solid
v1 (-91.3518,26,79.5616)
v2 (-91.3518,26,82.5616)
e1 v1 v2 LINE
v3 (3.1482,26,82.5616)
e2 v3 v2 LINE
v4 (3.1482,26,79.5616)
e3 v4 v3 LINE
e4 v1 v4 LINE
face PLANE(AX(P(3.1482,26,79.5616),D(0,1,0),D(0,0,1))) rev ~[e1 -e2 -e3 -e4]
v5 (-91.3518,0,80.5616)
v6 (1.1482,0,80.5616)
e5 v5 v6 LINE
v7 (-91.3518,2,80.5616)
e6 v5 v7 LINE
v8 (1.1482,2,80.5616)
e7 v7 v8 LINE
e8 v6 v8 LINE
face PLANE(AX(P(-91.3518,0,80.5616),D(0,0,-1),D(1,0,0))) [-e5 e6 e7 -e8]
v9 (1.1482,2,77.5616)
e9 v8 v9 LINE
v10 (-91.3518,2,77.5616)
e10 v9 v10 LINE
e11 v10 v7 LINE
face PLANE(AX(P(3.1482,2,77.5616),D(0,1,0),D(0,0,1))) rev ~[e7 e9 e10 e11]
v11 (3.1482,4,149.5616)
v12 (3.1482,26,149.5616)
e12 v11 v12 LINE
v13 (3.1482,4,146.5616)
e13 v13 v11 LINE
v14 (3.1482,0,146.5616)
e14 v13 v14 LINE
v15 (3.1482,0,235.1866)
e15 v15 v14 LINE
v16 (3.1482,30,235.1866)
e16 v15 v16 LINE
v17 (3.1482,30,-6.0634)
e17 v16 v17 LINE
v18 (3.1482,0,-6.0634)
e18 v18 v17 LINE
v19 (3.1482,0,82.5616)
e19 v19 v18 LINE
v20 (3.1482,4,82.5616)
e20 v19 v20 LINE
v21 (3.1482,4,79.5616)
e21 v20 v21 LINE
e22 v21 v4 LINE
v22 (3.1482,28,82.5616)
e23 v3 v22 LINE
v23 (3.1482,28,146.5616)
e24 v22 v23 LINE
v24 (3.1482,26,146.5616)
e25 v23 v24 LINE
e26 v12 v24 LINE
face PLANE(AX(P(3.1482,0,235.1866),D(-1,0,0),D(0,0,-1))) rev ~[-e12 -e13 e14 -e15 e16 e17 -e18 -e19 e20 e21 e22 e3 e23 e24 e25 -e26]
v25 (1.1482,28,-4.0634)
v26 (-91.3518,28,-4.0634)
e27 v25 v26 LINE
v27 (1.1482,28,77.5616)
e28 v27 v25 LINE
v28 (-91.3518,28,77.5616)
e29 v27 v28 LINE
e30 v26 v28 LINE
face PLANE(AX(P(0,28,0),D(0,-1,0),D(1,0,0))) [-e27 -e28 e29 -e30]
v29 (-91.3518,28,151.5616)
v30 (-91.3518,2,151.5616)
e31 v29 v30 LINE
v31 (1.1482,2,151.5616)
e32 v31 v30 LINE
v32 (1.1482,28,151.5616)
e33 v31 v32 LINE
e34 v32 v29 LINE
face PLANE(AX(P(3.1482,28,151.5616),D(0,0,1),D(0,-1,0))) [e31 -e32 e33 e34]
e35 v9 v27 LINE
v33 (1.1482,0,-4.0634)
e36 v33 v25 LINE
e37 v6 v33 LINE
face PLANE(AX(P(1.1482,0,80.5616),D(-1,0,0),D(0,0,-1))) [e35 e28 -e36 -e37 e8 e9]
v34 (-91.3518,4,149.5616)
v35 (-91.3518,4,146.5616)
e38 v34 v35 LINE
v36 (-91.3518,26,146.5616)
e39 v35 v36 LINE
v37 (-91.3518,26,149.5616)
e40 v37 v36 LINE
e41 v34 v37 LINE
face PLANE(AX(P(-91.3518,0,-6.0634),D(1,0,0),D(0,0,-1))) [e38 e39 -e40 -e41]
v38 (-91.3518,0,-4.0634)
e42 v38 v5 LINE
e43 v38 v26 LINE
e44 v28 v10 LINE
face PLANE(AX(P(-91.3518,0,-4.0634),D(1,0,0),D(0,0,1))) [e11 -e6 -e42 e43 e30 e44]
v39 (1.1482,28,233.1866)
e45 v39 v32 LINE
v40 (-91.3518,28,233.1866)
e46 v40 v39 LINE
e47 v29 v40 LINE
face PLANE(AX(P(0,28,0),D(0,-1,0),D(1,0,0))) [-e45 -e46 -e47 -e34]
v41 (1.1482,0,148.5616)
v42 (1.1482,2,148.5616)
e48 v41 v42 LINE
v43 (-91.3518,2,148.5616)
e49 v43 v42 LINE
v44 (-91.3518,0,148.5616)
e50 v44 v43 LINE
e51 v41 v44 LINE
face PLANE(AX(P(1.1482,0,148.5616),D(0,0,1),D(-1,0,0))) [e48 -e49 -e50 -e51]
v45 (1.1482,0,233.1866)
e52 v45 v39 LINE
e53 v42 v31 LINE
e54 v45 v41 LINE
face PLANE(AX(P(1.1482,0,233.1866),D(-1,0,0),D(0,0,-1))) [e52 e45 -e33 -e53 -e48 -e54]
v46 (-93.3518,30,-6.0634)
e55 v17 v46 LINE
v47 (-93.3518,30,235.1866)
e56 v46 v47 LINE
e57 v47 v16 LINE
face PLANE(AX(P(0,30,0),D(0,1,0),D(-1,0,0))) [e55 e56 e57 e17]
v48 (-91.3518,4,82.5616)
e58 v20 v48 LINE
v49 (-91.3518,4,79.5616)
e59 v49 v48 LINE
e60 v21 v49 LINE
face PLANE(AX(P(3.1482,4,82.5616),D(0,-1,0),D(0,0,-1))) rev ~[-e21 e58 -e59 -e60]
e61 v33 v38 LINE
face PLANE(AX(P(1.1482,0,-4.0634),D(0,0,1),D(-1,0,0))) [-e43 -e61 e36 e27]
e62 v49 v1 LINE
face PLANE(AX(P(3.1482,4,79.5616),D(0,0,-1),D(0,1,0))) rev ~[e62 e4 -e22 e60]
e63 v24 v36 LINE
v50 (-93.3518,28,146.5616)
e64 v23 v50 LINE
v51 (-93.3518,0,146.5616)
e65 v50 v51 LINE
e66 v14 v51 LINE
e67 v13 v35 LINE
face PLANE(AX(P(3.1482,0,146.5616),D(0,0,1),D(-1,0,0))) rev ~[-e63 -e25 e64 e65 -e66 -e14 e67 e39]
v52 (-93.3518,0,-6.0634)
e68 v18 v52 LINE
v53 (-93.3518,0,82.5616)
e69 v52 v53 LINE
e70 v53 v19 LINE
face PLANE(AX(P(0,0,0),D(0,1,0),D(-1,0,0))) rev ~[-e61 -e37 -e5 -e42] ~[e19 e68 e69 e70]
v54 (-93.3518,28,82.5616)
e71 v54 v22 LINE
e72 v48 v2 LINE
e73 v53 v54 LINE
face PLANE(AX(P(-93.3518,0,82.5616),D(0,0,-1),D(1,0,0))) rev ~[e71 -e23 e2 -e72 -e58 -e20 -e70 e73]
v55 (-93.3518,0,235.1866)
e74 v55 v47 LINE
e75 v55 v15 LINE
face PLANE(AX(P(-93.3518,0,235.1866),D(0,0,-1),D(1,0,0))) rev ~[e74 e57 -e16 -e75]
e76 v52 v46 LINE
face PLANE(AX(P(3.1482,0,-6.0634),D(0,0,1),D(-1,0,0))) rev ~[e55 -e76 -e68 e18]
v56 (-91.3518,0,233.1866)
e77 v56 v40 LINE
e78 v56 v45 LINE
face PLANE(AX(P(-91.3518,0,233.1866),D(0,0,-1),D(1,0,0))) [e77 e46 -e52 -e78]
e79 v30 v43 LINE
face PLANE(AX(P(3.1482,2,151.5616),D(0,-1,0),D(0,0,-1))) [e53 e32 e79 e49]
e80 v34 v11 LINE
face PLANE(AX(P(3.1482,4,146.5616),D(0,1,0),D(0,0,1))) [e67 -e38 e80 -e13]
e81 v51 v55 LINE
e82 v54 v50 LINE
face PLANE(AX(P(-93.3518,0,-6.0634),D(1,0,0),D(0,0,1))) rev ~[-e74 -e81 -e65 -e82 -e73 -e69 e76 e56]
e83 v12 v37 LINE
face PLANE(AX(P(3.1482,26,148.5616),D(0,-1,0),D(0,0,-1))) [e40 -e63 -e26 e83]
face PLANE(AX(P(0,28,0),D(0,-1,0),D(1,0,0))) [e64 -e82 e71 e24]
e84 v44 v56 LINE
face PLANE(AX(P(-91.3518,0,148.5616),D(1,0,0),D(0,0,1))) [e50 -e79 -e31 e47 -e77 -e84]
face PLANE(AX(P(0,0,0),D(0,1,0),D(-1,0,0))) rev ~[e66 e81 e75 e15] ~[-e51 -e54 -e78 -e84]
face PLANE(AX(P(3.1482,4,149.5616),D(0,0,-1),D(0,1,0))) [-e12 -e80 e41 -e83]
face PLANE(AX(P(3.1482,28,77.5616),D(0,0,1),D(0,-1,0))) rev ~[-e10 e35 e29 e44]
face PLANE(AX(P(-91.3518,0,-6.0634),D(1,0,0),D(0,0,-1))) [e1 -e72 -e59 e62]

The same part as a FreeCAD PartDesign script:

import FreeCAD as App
import Part
import Sketcher

doc = App.newDocument("Part")
params = doc.addObject("Spreadsheet::Sheet", "Params")
for row, (alias, value) in enumerate([
    ("sketch1_width", "96.5 mm"),
    ("sketch1_height", "241.25 mm"),
    ("pad1_length", "30 mm"),
    ("sketch2_height", "64 mm"),
    ("sketch2_width", "96.5 mm"),
    ("pocket1_length", "28 mm"),
    ("sketch3_width", "92.5 mm"),
    ("pocket2_length", "28 mm"),
    ("sketch4_width", "2 mm"),
    ("sketch4_width2", "22 mm"),
    ("sketch4_height", "5 mm"),
    ("sketch4_height2", "3 mm"),
    ("pad2_length", "96.5 mm"),
    ("sketch5_width", "22 mm"),
    ("sketch5_height", "3 mm"),
    ("pocket3_length", "94.5 mm"),
], start=1):
    params.set(f"A{row}", alias)
    params.set(f"B{row}", "=" + value)
    params.setAlias(f"B{row}", alias)

body = doc.addObject("PartDesign::Body", "Body")

# Sketch on XZ plane
sketch1 = body.newObject("Sketcher::SketchObject", "Sketch")
sketch1.AttachmentSupport = (doc.getObject("XZ_Plane"), [""])
sketch1.MapMode = "FlatFace"
sketch1.addGeometry([
    Part.LineSegment(App.Vector(-93, -6, 0), App.Vector(-93, 235, 0)),
    Part.LineSegment(App.Vector(-93, 235, 0), App.Vector(3, 235, 0)),
    Part.LineSegment(App.Vector(3, 235, 0), App.Vector(3, -6, 0)),
    Part.LineSegment(App.Vector(3, -6, 0), App.Vector(-93, -6, 0)),
], False)
sketch1.addConstraint([
    Sketcher.Constraint("Coincident", 0, 2, 1, 1),
    Sketcher.Constraint("Coincident", 1, 2, 2, 1),
    Sketcher.Constraint("Coincident", 2, 2, 3, 1),
    Sketcher.Constraint("Coincident", 3, 2, 0, 1),
    Sketcher.Constraint("Vertical", 0),
    Sketcher.Constraint("Horizontal", 1),
    Sketcher.Constraint("Vertical", 2),
    Sketcher.Constraint("Horizontal", 3),
    Sketcher.Constraint("DistanceX", 1, 1, 1, 2, 96.5),
    Sketcher.Constraint("DistanceY", 0, 1, 0, 2, 241.25),
    Sketcher.Constraint("DistanceX", 0, 2, -1, 1, 93.3518),
    Sketcher.Constraint("DistanceY", -1, 1, 0, 2, 235.1866),
])
sketch1.setExpression("Constraints[8]", "Params.sketch1_width")
sketch1.setExpression("Constraints[9]", "Params.sketch1_height")
pad1 = body.newObject("PartDesign::Pad", "Pad")
pad1.Profile = sketch1
pad1.setExpression("Length", "Params.pad1_length")
pad1.Reversed = True

# Sketch on XZ plane
sketch2 = body.newObject("Sketcher::SketchObject", "Sketch001")
sketch2.AttachmentSupport = (doc.getObject("XZ_Plane"), [""])
sketch2.MapMode = "FlatFace"
sketch2.addGeometry([
    Part.LineSegment(App.Vector(-93, 147, 0), App.Vector(-93, 83, 0)),
    Part.LineSegment(App.Vector(-93, 83, 0), App.Vector(3, 83, 0)),
    Part.LineSegment(App.Vector(3, 83, 0), App.Vector(3, 147, 0)),
    Part.LineSegment(App.Vector(3, 147, 0), App.Vector(-93, 147, 0)),
], False)
sketch2.addConstraint([
    Sketcher.Constraint("Coincident", 0, 2, 1, 1),
    Sketcher.Constraint("Coincident", 1, 2, 2, 1),
    Sketcher.Constraint("Coincident", 2, 2, 3, 1),
    Sketcher.Constraint("Coincident", 3, 2, 0, 1),
    Sketcher.Constraint("Vertical", 0),
    Sketcher.Constraint("Horizontal", 1),
    Sketcher.Constraint("Vertical", 2),
    Sketcher.Constraint("Horizontal", 3),
    Sketcher.Constraint("DistanceY", 0, 2, 0, 1, 64.0),
    Sketcher.Constraint("DistanceX", 1, 1, 1, 2, 96.5),
    Sketcher.Constraint("DistanceX", 0, 2, -1, 1, 93.3518),
    Sketcher.Constraint("DistanceY", -1, 1, 0, 2, 82.5616),
])
sketch2.setExpression("Constraints[8]", "Params.sketch2_height")
sketch2.setExpression("Constraints[9]", "Params.sketch2_width")
pocket1 = body.newObject("PartDesign::Pocket", "Pocket")
pocket1.Profile = sketch2
pocket1.setExpression("Length", "Params.pocket1_length")

# Sketch on XZ plane
sketch3 = body.newObject("Sketcher::SketchObject", "Sketch002")
sketch3.AttachmentSupport = (doc.getObject("XZ_Plane"), [""])
sketch3.MapMode = "FlatFace"
sketch3.addGeometry([
    Part.LineSegment(App.Vector(1, 81, 0), App.Vector(-91, 81, 0)),  # 0
    Part.LineSegment(App.Vector(-91, 81, 0), App.Vector(-91, -4, 0)),  # 1
    Part.LineSegment(App.Vector(-91, -4, 0), App.Vector(1, -4, 0)),  # 2
    Part.LineSegment(App.Vector(1, -4, 0), App.Vector(1, 81, 0)),  # 3
    Part.LineSegment(App.Vector(1, 233, 0), App.Vector(-91, 233, 0)),  # 4
    Part.LineSegment(App.Vector(-91, 233, 0), App.Vector(-91, 149, 0)),  # 5
    Part.LineSegment(App.Vector(-91, 149, 0), App.Vector(1, 149, 0)),  # 6
    Part.LineSegment(App.Vector(1, 149, 0), App.Vector(1, 233, 0)),  # 7
], False)
sketch3.addConstraint([
    Sketcher.Constraint("Coincident", 0, 2, 1, 1),
    Sketcher.Constraint("Coincident", 1, 2, 2, 1),
    Sketcher.Constraint("Coincident", 2, 2, 3, 1),
    Sketcher.Constraint("Coincident", 3, 2, 0, 1),
    Sketcher.Constraint("Coincident", 4, 2, 5, 1),
    Sketcher.Constraint("Coincident", 5, 2, 6, 1),
    Sketcher.Constraint("Coincident", 6, 2, 7, 1),
    Sketcher.Constraint("Coincident", 7, 2, 4, 1),
    Sketcher.Constraint("Horizontal", 0),
    Sketcher.Constraint("Vertical", 1),
    Sketcher.Constraint("Horizontal", 2),
    Sketcher.Constraint("Vertical", 3),
    Sketcher.Constraint("Horizontal", 4),
    Sketcher.Constraint("Vertical", 5),
    Sketcher.Constraint("Horizontal", 6),
    Sketcher.Constraint("Vertical", 7),
    Sketcher.Constraint("Vertical", 1, 2, 4, 2),
    Sketcher.Constraint("Vertical", 3, 2, 6, 2),
    Sketcher.Constraint("Equal", 3, 5),
    Sketcher.Constraint("DistanceX", 0, 2, 0, 1, 92.5),
    Sketcher.Constraint("DistanceY", 0, 2, 5, 2, 68.0),
    Sketcher.Constraint("DistanceY", 1, 2, 1, 1, 84.625),
    Sketcher.Constraint("DistanceX", 0, 2, -1, 1, 91.3518),
    Sketcher.Constraint("DistanceY", -1, 1, 0, 2, 80.5616),
])
sketch3.setExpression("Constraints[19]", "Params.sketch3_width")
pocket2 = body.newObject("PartDesign::Pocket", "Pocket001")
pocket2.Profile = sketch3
pocket2.setExpression("Length", "Params.pocket2_length")

# Sketch on YZ plane
sketch4 = body.newObject("Sketcher::SketchObject", "Sketch003")
sketch4.AttachmentSupport = (doc.getObject("YZ_Plane"), [""])
sketch4.MapMode = "FlatFace"
sketch4.AttachmentOffset = App.Placement(App.Vector(0, 0, 3.1482), App.Rotation())
sketch4.addGeometry([
    Part.LineSegment(App.Vector(28, 77.6, 0), App.Vector(28, 82.6, 0)),  # 0
    Part.LineSegment(App.Vector(28, 82.6, 0), App.Vector(26, 82.6, 0)),  # 1
    Part.LineSegment(App.Vector(26, 82.6, 0), App.Vector(26, 79.6, 0)),  # 2
    Part.LineSegment(App.Vector(26, 79.6, 0), App.Vector(4, 79.6, 0)),  # 3
    Part.LineSegment(App.Vector(4, 79.6, 0), App.Vector(4, 82.6, 0)),  # 4
    Part.LineSegment(App.Vector(4, 82.6, 0), App.Vector(2, 82.6, 0)),  # 5
    Part.LineSegment(App.Vector(2, 82.6, 0), App.Vector(2, 77.6, 0)),  # 6
    Part.LineSegment(App.Vector(2, 77.6, 0), App.Vector(28, 77.6, 0)),  # 7
    Part.LineSegment(App.Vector(26, 146.6, 0), App.Vector(28, 146.6, 0)),  # 8
    Part.LineSegment(App.Vector(28, 146.6, 0), App.Vector(28, 151.6, 0)),  # 9
    Part.LineSegment(App.Vector(28, 151.6, 0), App.Vector(2, 151.6, 0)),  # 10
    Part.LineSegment(App.Vector(2, 151.6, 0), App.Vector(2, 146.6, 0)),  # 11
    Part.LineSegment(App.Vector(2, 146.6, 0), App.Vector(4, 146.6, 0)),  # 12
    Part.LineSegment(App.Vector(4, 146.6, 0), App.Vector(4, 149.6, 0)),  # 13
    Part.LineSegment(App.Vector(4, 149.6, 0), App.Vector(26, 149.6, 0)),  # 14
    Part.LineSegment(App.Vector(26, 149.6, 0), App.Vector(26, 146.6, 0)),  # 15
], False)
sketch4.addConstraint([
    Sketcher.Constraint("Coincident", 0, 2, 1, 1),
    Sketcher.Constraint("Coincident", 1, 2, 2, 1),
    Sketcher.Constraint("Coincident", 2, 2, 3, 1),
    Sketcher.Constraint("Coincident", 3, 2, 4, 1),
    Sketcher.Constraint("Coincident", 4, 2, 5, 1),
    Sketcher.Constraint("Coincident", 5, 2, 6, 1),
    Sketcher.Constraint("Coincident", 6, 2, 7, 1),
    Sketcher.Constraint("Coincident", 7, 2, 0, 1),
    Sketcher.Constraint("Coincident", 8, 2, 9, 1),
    Sketcher.Constraint("Coincident", 9, 2, 10, 1),
    Sketcher.Constraint("Coincident", 10, 2, 11, 1),
    Sketcher.Constraint("Coincident", 11, 2, 12, 1),
    Sketcher.Constraint("Coincident", 12, 2, 13, 1),
    Sketcher.Constraint("Coincident", 13, 2, 14, 1),
    Sketcher.Constraint("Coincident", 14, 2, 15, 1),
    Sketcher.Constraint("Coincident", 15, 2, 8, 1),
    Sketcher.Constraint("Vertical", 0),
    Sketcher.Constraint("Horizontal", 1),
    Sketcher.Constraint("Vertical", 2),
    Sketcher.Constraint("Horizontal", 3),
    Sketcher.Constraint("Vertical", 4),
    Sketcher.Constraint("Horizontal", 5),
    Sketcher.Constraint("Vertical", 6),
    Sketcher.Constraint("Horizontal", 7),
    Sketcher.Constraint("Horizontal", 8),
    Sketcher.Constraint("Vertical", 9),
    Sketcher.Constraint("Horizontal", 10),
    Sketcher.Constraint("Vertical", 11),
    Sketcher.Constraint("Horizontal", 12),
    Sketcher.Constraint("Vertical", 13),
    Sketcher.Constraint("Horizontal", 14),
    Sketcher.Constraint("Vertical", 15),
    Sketcher.Constraint("Horizontal", 1, 2, 4, 2),
    Sketcher.Constraint("Horizontal", 8, 2, 11, 2),
    Sketcher.Constraint("Vertical", 7, 2, 8, 2),
    Sketcher.Constraint("Vertical", 6, 2, 10, 2),
    Sketcher.Constraint("Vertical", 4, 2, 12, 2),
    Sketcher.Constraint("Vertical", 2, 2, 14, 2),
    Sketcher.Constraint("Equal", 1, 5),
    Sketcher.Constraint("Equal", 6, 9),
    Sketcher.Constraint("Equal", 4, 13),
    Sketcher.Constraint("DistanceX", 1, 2, 1, 1, 2.0),
    Sketcher.Constraint("DistanceX", 3, 2, 3, 1, 22.0),
    Sketcher.Constraint("DistanceY", 0, 1, 0, 2, 5.0),
    Sketcher.Constraint("DistanceY", 2, 2, 2, 1, 3.0),
    Sketcher.Constraint("DistanceX", -1, 1, 3, 2, 4.0),
    Sketcher.Constraint("DistanceY", 0, 2, 8, 2, 64.0),
    Sketcher.Constraint("DistanceY", -1, 1, 0, 2, 82.5616),
])
sketch4.setExpression("Constraints[41]", "Params.sketch4_width")
sketch4.setExpression("Constraints[42]", "Params.sketch4_width2")
sketch4.setExpression("Constraints[43]", "Params.sketch4_height")
sketch4.setExpression("Constraints[44]", "Params.sketch4_height2")
pad2 = body.newObject("PartDesign::Pad", "Pad001")
pad2.Profile = sketch4
pad2.setExpression("Length", "Params.pad2_length")
pad2.Reversed = True

# Sketch on YZ plane
sketch5 = body.newObject("Sketcher::SketchObject", "Sketch004")
sketch5.AttachmentSupport = (doc.getObject("YZ_Plane"), [""])
sketch5.MapMode = "FlatFace"
sketch5.AttachmentOffset = App.Placement(App.Vector(0, 0, 3.1482), App.Rotation())
sketch5.addGeometry([
    Part.LineSegment(App.Vector(4, 146.6, 0), App.Vector(26, 146.6, 0)),  # 0
    Part.LineSegment(App.Vector(26, 146.6, 0), App.Vector(26, 149.6, 0)),  # 1
    Part.LineSegment(App.Vector(26, 149.6, 0), App.Vector(4, 149.6, 0)),  # 2
    Part.LineSegment(App.Vector(4, 149.6, 0), App.Vector(4, 146.6, 0)),  # 3
    Part.LineSegment(App.Vector(26, 79.6, 0), App.Vector(26, 82.6, 0)),  # 4
    Part.LineSegment(App.Vector(26, 82.6, 0), App.Vector(4, 82.6, 0)),  # 5
    Part.LineSegment(App.Vector(4, 82.6, 0), App.Vector(4, 79.6, 0)),  # 6
    Part.LineSegment(App.Vector(4, 79.6, 0), App.Vector(26, 79.6, 0)),  # 7
], False)
sketch5.addConstraint([
    Sketcher.Constraint("Coincident", 0, 2, 1, 1),
    Sketcher.Constraint("Coincident", 1, 2, 2, 1),
    Sketcher.Constraint("Coincident", 2, 2, 3, 1),
    Sketcher.Constraint("Coincident", 3, 2, 0, 1),
    Sketcher.Constraint("Coincident", 4, 2, 5, 1),
    Sketcher.Constraint("Coincident", 5, 2, 6, 1),
    Sketcher.Constraint("Coincident", 6, 2, 7, 1),
    Sketcher.Constraint("Coincident", 7, 2, 4, 1),
    Sketcher.Constraint("Horizontal", 0),
    Sketcher.Constraint("Vertical", 1),
    Sketcher.Constraint("Horizontal", 2),
    Sketcher.Constraint("Vertical", 3),
    Sketcher.Constraint("Vertical", 4),
    Sketcher.Constraint("Horizontal", 5),
    Sketcher.Constraint("Vertical", 6),
    Sketcher.Constraint("Horizontal", 7),
    Sketcher.Constraint("Vertical", 1, 2, 4, 2),
    Sketcher.Constraint("Vertical", 3, 2, 5, 2),
    Sketcher.Constraint("Equal", 3, 4),
    Sketcher.Constraint("DistanceX", 0, 1, 0, 2, 22.0),
    Sketcher.Constraint("DistanceY", 1, 1, 1, 2, 3.0),
    Sketcher.Constraint("DistanceX", -1, 1, 2, 2, 4.0),
    Sketcher.Constraint("DistanceY", 4, 2, 0, 2, 64.0),
    Sketcher.Constraint("DistanceY", -1, 1, 0, 2, 146.5616),
])
sketch5.setExpression("Constraints[19]", "Params.sketch5_width")
sketch5.setExpression("Constraints[20]", "Params.sketch5_height")
pocket3 = body.newObject("PartDesign::Pocket", "Pocket002")
pocket3.Profile = sketch5
pocket3.setExpression("Length", "Params.pocket3_length")

doc.recompute()
